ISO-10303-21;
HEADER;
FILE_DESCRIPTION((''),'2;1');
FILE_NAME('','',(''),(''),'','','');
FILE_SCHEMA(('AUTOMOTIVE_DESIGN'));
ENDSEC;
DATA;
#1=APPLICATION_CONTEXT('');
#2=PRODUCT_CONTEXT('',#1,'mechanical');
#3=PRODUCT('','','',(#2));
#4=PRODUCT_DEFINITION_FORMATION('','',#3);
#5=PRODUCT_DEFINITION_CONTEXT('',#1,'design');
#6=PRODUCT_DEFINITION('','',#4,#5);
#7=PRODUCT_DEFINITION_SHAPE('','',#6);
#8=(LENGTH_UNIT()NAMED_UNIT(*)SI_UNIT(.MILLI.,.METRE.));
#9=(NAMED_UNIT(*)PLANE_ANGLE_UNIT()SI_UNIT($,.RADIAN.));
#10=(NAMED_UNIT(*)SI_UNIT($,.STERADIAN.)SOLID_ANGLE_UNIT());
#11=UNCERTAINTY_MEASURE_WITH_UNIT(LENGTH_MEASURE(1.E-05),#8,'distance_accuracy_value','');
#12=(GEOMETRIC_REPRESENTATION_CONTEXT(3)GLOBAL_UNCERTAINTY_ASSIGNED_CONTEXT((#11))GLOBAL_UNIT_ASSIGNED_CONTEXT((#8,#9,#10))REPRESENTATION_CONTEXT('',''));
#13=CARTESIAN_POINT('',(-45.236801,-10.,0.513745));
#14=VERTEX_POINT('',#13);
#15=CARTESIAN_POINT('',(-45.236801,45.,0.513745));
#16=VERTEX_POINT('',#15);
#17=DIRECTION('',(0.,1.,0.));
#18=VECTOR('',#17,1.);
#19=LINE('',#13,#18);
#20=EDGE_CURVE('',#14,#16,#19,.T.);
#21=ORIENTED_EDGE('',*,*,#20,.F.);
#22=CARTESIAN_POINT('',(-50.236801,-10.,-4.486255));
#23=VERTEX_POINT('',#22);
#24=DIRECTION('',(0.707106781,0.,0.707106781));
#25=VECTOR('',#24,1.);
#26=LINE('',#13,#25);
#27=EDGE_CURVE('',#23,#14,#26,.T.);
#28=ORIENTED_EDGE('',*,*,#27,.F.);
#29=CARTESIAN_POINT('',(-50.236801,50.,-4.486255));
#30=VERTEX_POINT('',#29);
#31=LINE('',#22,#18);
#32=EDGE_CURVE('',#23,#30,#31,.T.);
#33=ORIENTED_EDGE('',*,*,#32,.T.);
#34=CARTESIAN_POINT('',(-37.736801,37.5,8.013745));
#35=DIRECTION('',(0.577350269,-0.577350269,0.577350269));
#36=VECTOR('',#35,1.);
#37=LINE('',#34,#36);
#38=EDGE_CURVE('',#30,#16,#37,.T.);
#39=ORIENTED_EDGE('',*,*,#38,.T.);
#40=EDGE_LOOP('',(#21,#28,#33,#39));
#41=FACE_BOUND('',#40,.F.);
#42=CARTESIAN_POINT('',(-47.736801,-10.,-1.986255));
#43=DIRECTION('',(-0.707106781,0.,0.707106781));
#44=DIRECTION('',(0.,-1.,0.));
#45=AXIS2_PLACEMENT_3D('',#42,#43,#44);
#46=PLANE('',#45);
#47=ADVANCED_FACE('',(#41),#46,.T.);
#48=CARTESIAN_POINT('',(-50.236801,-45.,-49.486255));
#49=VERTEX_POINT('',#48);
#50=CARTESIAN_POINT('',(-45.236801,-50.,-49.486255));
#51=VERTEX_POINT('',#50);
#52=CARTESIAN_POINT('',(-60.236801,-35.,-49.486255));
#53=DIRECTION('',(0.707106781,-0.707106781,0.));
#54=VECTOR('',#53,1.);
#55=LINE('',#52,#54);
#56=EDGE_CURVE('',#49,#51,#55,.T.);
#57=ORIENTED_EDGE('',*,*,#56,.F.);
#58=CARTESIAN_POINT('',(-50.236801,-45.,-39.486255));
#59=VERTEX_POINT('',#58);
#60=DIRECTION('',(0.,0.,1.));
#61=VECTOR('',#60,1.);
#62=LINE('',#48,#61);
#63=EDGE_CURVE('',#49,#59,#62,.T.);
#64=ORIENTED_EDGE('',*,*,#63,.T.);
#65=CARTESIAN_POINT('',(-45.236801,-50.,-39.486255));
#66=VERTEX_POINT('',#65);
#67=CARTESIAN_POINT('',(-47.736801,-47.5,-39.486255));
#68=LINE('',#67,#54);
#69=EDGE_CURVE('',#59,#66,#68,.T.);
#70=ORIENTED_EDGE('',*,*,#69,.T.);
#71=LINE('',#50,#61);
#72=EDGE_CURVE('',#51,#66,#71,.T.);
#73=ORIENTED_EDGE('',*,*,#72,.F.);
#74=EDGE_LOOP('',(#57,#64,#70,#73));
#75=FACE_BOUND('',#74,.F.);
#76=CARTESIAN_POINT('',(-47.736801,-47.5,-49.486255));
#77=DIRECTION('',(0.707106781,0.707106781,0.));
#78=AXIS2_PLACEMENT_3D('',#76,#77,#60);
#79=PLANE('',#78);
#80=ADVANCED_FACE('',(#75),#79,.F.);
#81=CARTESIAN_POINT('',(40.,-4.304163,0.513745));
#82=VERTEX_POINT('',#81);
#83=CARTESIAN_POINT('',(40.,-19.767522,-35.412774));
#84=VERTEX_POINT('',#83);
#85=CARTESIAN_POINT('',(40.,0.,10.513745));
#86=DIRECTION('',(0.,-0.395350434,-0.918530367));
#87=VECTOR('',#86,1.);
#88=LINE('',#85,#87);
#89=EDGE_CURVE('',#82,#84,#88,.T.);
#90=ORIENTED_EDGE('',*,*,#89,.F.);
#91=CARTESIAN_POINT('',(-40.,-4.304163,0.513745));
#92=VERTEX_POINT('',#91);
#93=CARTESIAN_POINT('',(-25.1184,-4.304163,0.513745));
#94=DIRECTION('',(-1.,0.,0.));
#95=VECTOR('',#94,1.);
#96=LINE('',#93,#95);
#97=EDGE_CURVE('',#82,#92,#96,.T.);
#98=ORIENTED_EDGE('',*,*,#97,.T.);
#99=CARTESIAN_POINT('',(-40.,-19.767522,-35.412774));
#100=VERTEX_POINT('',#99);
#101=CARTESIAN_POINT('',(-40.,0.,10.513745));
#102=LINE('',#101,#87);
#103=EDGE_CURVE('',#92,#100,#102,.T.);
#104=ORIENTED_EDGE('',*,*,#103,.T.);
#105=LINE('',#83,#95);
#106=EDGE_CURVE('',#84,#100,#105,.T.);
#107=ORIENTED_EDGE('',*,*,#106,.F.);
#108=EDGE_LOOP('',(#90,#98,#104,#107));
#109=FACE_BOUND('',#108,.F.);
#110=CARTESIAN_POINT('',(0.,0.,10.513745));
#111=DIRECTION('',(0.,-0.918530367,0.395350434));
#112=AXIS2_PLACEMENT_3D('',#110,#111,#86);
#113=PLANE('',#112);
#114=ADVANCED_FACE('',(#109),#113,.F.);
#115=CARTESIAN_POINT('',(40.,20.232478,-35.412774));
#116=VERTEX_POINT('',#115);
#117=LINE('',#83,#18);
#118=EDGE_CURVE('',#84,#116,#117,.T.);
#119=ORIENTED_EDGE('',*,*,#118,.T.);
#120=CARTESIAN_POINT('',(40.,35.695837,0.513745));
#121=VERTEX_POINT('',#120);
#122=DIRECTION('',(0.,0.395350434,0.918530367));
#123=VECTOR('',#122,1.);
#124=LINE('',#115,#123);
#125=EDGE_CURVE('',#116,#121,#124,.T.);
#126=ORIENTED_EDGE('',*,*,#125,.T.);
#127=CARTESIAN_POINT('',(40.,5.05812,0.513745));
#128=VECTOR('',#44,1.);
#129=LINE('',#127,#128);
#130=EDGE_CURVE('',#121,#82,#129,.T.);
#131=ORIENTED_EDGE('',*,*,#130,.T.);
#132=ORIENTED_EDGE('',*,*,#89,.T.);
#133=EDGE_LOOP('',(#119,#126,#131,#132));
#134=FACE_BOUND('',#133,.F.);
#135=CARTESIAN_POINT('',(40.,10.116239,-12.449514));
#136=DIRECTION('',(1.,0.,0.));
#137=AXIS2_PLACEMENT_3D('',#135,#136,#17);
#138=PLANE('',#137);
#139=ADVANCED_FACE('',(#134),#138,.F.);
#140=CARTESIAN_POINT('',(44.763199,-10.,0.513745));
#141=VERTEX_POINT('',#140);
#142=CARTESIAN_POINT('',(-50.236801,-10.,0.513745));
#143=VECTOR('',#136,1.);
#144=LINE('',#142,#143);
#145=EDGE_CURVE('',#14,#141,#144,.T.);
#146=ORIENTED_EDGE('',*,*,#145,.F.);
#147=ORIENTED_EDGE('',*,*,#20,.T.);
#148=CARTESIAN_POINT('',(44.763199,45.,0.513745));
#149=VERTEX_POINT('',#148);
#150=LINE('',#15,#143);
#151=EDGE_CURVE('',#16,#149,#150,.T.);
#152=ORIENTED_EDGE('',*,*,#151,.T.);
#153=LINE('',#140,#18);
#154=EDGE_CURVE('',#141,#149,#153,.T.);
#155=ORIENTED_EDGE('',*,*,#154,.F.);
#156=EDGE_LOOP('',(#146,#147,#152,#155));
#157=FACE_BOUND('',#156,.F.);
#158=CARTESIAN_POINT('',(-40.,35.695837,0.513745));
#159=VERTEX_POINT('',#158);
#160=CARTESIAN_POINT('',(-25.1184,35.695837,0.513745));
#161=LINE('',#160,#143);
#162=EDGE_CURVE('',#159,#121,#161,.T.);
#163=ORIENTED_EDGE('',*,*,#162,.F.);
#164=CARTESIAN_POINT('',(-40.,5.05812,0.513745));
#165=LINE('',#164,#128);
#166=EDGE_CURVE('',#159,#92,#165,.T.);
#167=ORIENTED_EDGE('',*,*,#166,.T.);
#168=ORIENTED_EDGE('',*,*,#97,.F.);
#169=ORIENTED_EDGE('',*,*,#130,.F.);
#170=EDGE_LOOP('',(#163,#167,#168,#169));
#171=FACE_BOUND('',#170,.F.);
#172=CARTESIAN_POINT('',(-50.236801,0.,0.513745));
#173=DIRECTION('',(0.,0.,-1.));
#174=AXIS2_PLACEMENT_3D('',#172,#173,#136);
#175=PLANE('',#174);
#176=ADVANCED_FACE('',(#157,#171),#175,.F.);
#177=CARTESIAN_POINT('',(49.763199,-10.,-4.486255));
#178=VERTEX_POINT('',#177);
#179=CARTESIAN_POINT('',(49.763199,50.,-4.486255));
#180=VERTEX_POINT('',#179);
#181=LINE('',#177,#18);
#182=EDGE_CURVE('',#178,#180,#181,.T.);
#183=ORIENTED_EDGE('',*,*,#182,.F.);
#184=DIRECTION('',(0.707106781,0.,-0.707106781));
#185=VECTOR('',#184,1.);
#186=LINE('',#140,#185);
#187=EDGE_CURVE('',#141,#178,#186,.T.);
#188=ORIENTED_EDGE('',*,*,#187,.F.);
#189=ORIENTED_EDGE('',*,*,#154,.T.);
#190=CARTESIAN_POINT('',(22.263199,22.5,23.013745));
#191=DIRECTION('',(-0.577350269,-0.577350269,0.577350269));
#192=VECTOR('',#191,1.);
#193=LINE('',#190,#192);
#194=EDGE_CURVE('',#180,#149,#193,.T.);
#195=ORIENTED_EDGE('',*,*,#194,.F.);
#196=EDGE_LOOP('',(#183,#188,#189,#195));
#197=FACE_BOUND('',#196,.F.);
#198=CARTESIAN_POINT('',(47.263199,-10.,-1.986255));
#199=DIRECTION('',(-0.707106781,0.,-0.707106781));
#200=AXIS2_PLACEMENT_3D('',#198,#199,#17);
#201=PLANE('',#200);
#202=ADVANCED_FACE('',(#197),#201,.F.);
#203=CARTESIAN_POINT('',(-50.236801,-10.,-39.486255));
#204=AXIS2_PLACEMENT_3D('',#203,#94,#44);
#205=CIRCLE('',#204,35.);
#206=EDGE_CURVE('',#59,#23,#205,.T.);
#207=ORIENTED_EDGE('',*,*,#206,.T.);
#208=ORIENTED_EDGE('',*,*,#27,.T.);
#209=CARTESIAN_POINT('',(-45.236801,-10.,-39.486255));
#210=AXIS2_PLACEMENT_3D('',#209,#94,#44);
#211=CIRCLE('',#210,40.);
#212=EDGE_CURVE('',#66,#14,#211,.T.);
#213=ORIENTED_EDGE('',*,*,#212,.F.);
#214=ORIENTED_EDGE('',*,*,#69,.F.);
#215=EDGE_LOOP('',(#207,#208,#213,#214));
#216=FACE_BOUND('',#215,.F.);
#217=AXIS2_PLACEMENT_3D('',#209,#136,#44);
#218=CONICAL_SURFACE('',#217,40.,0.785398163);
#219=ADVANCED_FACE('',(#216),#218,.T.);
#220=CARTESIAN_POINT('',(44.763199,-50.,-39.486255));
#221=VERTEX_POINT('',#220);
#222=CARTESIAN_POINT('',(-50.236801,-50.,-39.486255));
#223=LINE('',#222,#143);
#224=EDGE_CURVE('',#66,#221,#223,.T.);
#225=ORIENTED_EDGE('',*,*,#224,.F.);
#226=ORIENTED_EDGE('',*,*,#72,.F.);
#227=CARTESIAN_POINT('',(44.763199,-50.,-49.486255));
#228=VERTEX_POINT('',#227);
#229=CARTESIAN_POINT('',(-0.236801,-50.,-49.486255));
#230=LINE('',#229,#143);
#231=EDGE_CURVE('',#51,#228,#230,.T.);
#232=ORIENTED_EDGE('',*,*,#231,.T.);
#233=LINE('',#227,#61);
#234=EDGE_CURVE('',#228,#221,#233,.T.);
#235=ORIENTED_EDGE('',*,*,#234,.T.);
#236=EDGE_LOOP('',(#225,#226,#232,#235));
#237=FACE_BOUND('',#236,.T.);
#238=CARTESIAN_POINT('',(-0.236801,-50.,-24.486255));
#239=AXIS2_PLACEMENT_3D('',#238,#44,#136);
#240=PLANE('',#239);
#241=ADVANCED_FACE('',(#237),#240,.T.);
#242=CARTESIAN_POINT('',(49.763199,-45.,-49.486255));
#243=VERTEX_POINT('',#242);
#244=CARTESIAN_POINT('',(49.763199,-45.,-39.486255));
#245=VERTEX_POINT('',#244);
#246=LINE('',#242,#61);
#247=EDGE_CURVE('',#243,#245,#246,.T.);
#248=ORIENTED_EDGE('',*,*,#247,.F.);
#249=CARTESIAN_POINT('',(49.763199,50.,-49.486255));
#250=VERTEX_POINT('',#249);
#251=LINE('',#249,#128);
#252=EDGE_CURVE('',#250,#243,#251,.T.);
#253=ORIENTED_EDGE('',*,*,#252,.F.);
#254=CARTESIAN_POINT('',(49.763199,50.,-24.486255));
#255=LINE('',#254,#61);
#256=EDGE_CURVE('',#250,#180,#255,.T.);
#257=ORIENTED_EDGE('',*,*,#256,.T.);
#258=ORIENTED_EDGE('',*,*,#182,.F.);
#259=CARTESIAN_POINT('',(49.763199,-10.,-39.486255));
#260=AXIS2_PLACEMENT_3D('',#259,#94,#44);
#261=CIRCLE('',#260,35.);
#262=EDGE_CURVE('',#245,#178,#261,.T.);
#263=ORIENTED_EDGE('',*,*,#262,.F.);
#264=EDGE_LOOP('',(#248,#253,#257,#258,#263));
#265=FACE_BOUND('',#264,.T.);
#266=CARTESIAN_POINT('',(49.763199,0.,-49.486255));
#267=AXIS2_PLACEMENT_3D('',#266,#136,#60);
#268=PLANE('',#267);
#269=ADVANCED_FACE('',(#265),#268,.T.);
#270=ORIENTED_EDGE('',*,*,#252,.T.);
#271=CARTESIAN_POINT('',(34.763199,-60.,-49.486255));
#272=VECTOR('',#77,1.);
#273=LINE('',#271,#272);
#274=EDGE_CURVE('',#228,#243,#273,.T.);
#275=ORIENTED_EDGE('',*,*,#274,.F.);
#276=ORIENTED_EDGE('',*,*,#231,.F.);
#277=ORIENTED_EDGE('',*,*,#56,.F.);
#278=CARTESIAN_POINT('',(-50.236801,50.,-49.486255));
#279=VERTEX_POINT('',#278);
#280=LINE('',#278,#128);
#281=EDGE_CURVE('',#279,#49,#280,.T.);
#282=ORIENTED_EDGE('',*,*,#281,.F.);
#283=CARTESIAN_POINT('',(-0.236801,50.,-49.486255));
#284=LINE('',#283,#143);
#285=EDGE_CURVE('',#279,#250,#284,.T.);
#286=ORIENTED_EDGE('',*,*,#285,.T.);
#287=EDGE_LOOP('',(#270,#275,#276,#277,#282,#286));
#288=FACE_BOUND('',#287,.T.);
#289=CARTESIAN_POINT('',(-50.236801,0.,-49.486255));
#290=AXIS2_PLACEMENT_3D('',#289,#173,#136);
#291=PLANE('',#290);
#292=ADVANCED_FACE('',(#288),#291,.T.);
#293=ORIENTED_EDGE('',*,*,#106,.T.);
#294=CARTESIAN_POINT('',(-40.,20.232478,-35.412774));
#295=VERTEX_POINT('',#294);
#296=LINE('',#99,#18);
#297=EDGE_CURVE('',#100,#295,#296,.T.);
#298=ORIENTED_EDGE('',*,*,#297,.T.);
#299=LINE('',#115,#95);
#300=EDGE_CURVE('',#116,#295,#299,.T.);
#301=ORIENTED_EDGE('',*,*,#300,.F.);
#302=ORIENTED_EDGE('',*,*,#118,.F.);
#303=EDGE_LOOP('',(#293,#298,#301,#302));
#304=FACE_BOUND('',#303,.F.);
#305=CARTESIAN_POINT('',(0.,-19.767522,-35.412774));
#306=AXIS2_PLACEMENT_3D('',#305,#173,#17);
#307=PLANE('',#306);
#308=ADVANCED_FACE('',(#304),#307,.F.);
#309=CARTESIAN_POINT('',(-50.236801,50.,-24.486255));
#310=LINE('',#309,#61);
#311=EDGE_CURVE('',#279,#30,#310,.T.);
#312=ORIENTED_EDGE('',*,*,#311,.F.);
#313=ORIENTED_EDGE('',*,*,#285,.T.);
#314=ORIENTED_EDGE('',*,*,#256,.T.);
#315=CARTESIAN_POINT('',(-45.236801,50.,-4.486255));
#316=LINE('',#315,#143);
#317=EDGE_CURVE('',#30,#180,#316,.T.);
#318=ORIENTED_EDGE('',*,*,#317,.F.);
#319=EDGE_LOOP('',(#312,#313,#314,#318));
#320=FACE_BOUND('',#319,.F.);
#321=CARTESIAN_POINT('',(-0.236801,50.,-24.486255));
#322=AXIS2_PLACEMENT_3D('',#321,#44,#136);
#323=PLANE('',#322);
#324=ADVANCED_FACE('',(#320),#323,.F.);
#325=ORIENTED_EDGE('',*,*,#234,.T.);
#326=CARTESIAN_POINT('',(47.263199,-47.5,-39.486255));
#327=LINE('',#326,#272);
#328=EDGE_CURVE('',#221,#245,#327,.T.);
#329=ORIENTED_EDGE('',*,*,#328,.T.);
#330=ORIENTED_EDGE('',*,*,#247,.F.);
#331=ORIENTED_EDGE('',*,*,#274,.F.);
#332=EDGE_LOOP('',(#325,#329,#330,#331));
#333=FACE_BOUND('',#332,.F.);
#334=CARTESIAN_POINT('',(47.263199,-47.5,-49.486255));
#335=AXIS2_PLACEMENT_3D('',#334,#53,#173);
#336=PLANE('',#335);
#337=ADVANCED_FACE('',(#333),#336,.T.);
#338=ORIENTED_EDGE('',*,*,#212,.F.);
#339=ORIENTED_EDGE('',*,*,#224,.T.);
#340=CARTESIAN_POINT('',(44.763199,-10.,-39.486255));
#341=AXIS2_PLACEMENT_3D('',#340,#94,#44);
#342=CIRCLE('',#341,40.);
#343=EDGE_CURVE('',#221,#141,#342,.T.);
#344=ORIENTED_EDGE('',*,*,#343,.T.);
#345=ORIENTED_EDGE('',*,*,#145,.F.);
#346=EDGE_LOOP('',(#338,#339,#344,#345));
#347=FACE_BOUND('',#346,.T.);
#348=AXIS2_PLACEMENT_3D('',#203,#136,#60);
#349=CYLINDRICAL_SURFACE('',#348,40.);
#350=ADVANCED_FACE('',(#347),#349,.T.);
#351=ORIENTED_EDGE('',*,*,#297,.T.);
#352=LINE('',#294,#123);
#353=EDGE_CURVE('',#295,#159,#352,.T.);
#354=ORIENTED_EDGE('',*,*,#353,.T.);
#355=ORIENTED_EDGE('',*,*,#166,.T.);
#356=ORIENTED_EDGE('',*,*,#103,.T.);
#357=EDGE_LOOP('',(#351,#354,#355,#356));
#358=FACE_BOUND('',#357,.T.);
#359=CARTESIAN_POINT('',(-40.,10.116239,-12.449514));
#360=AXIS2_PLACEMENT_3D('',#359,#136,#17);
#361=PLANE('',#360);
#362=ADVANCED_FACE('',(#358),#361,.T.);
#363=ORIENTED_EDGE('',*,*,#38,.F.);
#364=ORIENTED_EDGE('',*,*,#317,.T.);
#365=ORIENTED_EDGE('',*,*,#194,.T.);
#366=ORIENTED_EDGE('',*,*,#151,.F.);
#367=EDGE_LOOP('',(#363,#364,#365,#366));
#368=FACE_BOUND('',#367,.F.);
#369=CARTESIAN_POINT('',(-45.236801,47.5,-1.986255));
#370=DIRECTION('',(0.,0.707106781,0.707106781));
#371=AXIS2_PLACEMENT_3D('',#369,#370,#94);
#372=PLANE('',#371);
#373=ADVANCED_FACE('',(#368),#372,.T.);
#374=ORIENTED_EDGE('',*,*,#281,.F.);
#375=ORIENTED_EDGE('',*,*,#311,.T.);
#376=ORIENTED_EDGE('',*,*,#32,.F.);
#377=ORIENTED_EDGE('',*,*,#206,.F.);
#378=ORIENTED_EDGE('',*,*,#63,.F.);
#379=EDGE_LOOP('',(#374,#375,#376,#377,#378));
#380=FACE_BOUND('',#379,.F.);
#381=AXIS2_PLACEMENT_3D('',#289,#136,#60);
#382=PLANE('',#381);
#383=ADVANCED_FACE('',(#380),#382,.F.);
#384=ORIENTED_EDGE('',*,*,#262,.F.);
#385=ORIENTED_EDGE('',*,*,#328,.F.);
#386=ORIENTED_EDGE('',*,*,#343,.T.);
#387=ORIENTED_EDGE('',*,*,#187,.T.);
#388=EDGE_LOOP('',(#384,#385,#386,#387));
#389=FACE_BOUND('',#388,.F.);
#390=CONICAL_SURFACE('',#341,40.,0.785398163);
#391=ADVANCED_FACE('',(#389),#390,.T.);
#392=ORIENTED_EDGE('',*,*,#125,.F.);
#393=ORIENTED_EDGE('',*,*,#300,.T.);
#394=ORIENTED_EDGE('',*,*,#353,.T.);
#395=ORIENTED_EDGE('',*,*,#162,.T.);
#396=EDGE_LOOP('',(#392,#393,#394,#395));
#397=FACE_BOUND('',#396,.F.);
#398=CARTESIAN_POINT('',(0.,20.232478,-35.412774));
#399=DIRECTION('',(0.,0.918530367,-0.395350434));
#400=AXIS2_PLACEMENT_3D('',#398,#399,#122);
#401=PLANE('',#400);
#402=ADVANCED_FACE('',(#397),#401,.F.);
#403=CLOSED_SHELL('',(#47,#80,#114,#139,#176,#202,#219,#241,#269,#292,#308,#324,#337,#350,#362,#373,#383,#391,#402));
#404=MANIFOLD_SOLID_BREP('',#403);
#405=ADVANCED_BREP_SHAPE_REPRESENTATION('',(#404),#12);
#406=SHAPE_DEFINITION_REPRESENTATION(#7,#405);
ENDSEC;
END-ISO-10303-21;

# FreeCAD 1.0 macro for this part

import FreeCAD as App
import Part
import Sketcher

V = App.Vector
Q = App.Units.Quantity


def edges_at(feature, points):
    """Names of the edges that pass closest to the given points."""
    edges = feature.Shape.Edges
    near = lambda p: min(range(len(edges)), key=lambda i: edges[i].distToShape(Part.Vertex(*p))[0])
    return sorted({f"Edge{near(p) + 1}" for p in points})

doc = App.newDocument("Part")
body = doc.addObject("PartDesign::Body", "Body")

sketch1 = body.newObject("Sketcher::SketchObject", "Sketch")
sketch1.AttachmentSupport = (doc.getObject("XZ_Plane"), [""])
sketch1.MapMode = "FlatFace"
sketch1.addGeometry([
    Part.LineSegment(V(-50, 1, 0), V(-50, -49, 0)),
    Part.LineSegment(V(-50, -49, 0), V(50, -49, 0)),
    Part.LineSegment(V(50, -49, 0), V(50, 1, 0)),
    Part.LineSegment(V(50, 1, 0), V(-50, 1, 0)),
], False)
sketch1.addConstraint([
    Sketcher.Constraint("Coincident", 0, 2, 1, 1),
    Sketcher.Constraint("Coincident", 1, 2, 2, 1),
    Sketcher.Constraint("Coincident", 2, 2, 3, 1),
    Sketcher.Constraint("Coincident", 3, 2, 0, 1),
    Sketcher.Constraint("Vertical", 0),
    Sketcher.Constraint("Horizontal", 1),
    Sketcher.Constraint("Vertical", 2),
    Sketcher.Constraint("Horizontal", 3),
    Sketcher.Constraint("DistanceX", 1, 1, 1, 2, Q("100 mm")),
    Sketcher.Constraint("DistanceY", 0, 2, 0, 1, Q("50 mm")),
    Sketcher.Constraint("DistanceX", 0, 2, -1, 1, Q("50.236801 mm")),
    Sketcher.Constraint("DistanceY", 0, 2, -1, 1, Q("49.486255 mm")),
])
pad1 = body.newObject("PartDesign::Pad", "Pad")
pad1.Profile = sketch1
pad1.Length = 100
pad1.Midplane = True

sketch2 = body.newObject("Sketcher::SketchObject", "Sketch001")
sketch2.AttachmentSupport = (doc.getObject("YZ_Plane"), [""])
sketch2.MapMode = "FlatFace"
sketch2.addGeometry([
    Part.LineSegment(V(20, -35, 0), V(40, 11, 0)),
    Part.LineSegment(V(40, 11, 0), V(0, 11, 0)),
    Part.LineSegment(V(0, 11, 0), V(-20, -35, 0)),
    Part.LineSegment(V(-20, -35, 0), V(20, -35, 0)),
], False)
sketch2.addConstraint([
    Sketcher.Constraint("Coincident", 0, 2, 1, 1),
    Sketcher.Constraint("Coincident", 1, 2, 2, 1),
    Sketcher.Constraint("Coincident", 2, 2, 3, 1),
    Sketcher.Constraint("Coincident", 3, 2, 0, 1),
    Sketcher.Constraint("Horizontal", 1),
    Sketcher.Constraint("Horizontal", 3),
    Sketcher.Constraint("PointOnObject", 1, 2, -2),
    Sketcher.Constraint("Parallel", 0, 2),
    Sketcher.Constraint("DistanceX", 1, 2, 1, 1, Q("40 mm")),
    Sketcher.Constraint("Distance", 0, Q("50.000001 mm")),
    Sketcher.Constraint("DistanceX", 2, 2, -1, 1, Q("19.767522 mm")),
    Sketcher.Constraint("DistanceY", -1, 1, 0, 2, Q("10.513745 mm")),
])
pocket1 = body.newObject("PartDesign::Pocket", "Pocket")
pocket1.Profile = sketch2
pocket1.Length = 80
pocket1.Midplane = True
doc.recompute()

fillet = body.newObject("PartDesign::Fillet", "Fillet")
fillet.Base = (pocket1, edges_at(pocket1, [(-0.237, -50, 0.514)]))
fillet.Radius = 40
doc.recompute()

chamfer = body.newObject("PartDesign::Chamfer", "Chamfer")
chamfer.Base = (fillet, edges_at(fillet, [(-50.237, 20, 0.514)]))
chamfer.Size = 5
doc.recompute()

chamfer2 = body.newObject("PartDesign::Chamfer", "Chamfer001")
chamfer2.Base = (chamfer, edges_at(chamfer, [(49.763, 20, 0.514)]))
chamfer2.Size = 5
doc.recompute()

chamfer3 = body.newObject("PartDesign::Chamfer", "Chamfer002")
chamfer3.Base = (chamfer2, edges_at(chamfer2, [(-0.237, 50, 0.514)]))
chamfer3.Size = 5

doc.recompute()
